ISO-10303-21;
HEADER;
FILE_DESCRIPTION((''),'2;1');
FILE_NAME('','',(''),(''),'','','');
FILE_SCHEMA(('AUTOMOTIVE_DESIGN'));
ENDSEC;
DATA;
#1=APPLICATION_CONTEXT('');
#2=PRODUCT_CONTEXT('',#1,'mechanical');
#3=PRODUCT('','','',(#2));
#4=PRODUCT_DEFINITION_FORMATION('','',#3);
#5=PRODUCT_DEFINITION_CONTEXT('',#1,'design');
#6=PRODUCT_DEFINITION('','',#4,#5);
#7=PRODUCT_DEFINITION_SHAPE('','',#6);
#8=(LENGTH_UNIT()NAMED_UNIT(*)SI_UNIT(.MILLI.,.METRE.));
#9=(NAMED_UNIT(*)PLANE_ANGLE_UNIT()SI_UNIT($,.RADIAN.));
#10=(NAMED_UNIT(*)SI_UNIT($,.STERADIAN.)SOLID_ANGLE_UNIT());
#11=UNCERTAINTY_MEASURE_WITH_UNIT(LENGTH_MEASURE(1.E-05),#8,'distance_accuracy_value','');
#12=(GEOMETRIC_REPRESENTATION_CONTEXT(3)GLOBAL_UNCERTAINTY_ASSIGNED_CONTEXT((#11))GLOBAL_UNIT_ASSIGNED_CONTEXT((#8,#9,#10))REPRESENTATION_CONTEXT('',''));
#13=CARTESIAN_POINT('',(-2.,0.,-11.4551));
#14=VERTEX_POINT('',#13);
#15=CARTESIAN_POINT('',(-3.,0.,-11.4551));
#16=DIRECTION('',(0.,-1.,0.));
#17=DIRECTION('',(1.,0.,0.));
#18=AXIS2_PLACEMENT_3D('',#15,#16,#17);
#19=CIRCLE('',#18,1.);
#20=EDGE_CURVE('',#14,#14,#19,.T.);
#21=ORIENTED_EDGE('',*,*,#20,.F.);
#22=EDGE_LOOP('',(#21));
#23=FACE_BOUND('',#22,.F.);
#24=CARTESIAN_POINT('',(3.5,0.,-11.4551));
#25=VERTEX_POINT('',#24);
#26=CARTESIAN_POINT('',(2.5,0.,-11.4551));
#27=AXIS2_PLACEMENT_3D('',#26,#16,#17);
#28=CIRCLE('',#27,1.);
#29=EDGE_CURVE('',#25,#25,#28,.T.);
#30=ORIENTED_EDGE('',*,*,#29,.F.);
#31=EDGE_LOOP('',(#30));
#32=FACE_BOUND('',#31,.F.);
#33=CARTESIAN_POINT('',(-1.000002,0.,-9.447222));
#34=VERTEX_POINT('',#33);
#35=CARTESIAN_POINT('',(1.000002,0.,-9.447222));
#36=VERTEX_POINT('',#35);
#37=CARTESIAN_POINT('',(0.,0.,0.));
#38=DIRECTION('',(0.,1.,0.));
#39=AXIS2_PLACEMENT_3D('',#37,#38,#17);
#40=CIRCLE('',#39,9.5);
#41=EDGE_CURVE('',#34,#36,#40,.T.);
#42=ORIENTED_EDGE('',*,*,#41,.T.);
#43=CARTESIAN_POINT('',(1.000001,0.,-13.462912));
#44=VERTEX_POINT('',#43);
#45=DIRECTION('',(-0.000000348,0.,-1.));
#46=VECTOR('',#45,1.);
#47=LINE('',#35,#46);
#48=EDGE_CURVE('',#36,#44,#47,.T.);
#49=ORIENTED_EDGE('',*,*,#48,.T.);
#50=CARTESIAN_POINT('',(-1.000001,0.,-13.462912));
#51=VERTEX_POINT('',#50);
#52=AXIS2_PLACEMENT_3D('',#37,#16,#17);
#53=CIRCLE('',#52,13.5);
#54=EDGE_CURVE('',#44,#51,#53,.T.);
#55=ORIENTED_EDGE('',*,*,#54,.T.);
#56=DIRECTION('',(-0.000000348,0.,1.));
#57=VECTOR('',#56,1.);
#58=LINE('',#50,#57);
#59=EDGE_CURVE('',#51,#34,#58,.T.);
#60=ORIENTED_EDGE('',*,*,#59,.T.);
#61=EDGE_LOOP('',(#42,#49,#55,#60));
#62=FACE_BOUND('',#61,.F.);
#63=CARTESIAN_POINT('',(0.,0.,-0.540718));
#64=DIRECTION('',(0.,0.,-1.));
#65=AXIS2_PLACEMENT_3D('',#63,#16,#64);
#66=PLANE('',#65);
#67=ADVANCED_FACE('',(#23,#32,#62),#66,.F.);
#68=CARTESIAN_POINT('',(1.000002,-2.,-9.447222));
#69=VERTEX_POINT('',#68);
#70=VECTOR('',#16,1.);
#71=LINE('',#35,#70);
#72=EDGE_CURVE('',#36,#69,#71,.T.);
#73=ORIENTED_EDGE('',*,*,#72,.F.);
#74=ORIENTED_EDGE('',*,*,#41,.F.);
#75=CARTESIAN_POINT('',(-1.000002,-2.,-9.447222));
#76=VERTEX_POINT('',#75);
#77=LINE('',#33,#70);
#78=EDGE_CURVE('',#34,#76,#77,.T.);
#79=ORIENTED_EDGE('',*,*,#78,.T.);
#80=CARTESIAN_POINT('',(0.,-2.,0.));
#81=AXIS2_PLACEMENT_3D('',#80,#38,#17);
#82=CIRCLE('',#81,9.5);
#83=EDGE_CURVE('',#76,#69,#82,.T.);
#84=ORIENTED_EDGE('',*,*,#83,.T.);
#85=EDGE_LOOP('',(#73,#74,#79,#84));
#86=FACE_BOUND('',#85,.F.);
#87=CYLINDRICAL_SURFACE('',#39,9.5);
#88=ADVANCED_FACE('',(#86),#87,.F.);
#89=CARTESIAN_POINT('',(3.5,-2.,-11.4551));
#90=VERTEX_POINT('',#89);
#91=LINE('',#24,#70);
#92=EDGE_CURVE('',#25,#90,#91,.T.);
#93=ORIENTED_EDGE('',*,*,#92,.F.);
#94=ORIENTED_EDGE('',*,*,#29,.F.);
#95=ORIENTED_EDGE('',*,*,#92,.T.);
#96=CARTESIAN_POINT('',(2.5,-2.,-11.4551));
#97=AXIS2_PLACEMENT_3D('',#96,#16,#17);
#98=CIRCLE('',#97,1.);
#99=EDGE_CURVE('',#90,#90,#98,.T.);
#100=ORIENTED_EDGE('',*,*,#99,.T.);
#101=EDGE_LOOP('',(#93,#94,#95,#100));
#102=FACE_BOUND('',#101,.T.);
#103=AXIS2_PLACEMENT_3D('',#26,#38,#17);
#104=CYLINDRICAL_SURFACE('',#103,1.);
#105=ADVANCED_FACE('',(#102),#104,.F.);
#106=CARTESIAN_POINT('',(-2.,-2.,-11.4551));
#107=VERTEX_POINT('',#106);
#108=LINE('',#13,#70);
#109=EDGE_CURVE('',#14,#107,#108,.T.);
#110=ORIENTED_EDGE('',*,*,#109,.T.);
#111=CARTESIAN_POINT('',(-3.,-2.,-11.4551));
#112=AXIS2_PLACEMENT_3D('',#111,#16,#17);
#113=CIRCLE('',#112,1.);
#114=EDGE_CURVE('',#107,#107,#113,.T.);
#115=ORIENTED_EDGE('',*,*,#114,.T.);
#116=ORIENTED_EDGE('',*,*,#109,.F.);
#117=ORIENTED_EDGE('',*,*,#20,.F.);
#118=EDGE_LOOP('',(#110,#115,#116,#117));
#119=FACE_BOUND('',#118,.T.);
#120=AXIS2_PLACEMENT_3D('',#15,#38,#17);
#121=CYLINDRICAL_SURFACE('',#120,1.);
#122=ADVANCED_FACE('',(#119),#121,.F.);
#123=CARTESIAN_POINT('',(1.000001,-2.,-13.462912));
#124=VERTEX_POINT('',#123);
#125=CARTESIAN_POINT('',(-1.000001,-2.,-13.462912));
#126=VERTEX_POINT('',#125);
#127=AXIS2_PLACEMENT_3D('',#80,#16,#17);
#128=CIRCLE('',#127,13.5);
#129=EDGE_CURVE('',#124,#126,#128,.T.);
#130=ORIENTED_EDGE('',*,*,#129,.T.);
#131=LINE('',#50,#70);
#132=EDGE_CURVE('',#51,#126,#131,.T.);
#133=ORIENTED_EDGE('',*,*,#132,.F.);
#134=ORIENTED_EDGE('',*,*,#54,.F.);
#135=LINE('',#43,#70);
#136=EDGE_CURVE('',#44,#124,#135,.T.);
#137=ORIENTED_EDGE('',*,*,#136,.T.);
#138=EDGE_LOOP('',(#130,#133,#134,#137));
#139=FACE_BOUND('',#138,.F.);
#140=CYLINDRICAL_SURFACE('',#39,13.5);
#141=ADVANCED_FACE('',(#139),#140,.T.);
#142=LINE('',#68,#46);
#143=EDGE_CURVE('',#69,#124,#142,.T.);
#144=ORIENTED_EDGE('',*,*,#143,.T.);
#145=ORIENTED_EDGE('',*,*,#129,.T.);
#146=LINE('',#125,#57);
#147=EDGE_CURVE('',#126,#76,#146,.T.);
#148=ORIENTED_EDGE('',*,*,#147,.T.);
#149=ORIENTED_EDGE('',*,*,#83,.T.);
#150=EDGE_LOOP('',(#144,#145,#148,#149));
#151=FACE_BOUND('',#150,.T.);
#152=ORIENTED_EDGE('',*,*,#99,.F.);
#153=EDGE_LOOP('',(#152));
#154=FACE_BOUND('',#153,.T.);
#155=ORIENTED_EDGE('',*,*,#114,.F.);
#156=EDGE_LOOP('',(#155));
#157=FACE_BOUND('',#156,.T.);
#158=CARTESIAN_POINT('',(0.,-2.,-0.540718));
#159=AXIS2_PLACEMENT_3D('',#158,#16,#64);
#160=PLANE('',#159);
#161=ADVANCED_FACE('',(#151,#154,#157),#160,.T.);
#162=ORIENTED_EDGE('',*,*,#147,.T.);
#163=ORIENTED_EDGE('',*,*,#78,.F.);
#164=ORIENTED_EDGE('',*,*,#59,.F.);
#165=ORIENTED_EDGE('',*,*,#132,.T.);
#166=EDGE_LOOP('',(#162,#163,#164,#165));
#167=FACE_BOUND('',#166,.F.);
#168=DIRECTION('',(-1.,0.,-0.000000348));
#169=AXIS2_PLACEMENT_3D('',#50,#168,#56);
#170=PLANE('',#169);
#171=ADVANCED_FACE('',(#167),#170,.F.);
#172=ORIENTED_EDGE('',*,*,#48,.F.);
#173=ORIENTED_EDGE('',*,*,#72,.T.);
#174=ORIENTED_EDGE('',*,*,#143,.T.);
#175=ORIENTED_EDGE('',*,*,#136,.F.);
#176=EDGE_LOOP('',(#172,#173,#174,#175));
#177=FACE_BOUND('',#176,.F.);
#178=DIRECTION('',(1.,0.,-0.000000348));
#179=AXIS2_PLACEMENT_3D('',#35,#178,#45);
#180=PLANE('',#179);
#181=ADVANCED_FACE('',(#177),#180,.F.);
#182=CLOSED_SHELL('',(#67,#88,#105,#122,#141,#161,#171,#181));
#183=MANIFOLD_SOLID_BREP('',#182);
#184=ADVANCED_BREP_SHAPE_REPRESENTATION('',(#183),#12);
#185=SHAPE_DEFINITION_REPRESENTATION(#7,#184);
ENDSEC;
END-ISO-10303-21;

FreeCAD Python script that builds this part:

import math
import FreeCAD as App
import Part
import Sketcher
from FreeCAD import Vector

doc = App.newDocument("Part")
body = doc.addObject("PartDesign::Body", "Body")

# Sketch on XZ plane
sketch1 = body.newObject("Sketcher::SketchObject", "Sketch")
sketch1.AttachmentSupport = (doc.getObject("XZ_Plane"), [""])
sketch1.MapMode = "FlatFace"
sketch1.addGeometry([
    Part.ArcOfCircle(Part.Circle(Vector(0, 0, 0), Vector(0, 0, 1), 13.5), math.radians(-86), math.radians(266)),  # 0
    Part.LineSegment(Vector(-1, -13.5, 0), Vector(-1, -9.4, 0)),  # 1
    Part.ArcOfCircle(Part.Circle(Vector(0, 0, 0), Vector(0, 0, 1), 9.5), math.radians(-84), math.radians(264)),  # 2
    Part.LineSegment(Vector(1, -9.4, 0), Vector(1, -13.5, 0)),  # 3
    Part.Circle(Vector(-3, -11.5, 0), Vector(0, 0, 1), 1),  # 4
    Part.Circle(Vector(2.5, -11.5, 0), Vector(0, 0, 1), 1),  # 5
], False)
sketch1.addConstraint([
    Sketcher.Constraint("Coincident", 0, 2, 1, 1),
    Sketcher.Constraint("Coincident", 1, 2, 2, 2),
    Sketcher.Constraint("Coincident", 2, 1, 3, 1),
    Sketcher.Constraint("Coincident", 3, 2, 0, 1),
    Sketcher.Constraint("Vertical", 1),
    Sketcher.Constraint("Vertical", 3),
    Sketcher.Constraint("Coincident", 0, 3, -1, 1),
    Sketcher.Constraint("Coincident", 2, 3, -1, 1),
    Sketcher.Constraint("Equal", 4, 5),
    Sketcher.Constraint("Horizontal", 4, 3, 5, 3),
    Sketcher.Constraint("Horizontal", 1, 2, 2, 1),
    Sketcher.Constraint("Diameter", 4, 2.0),
    Sketcher.Constraint("Radius", 0, 13.5),
    Sketcher.Constraint("Radius", 2, 9.5),
    Sketcher.Constraint("DistanceX", 4, 3, -1, 1, 3.0),
    Sketcher.Constraint("DistanceX", 0, 2, -1, 1, 1.0),
    Sketcher.Constraint("DistanceX", -1, 1, 5, 3, 2.5),
    Sketcher.Constraint("DistanceY", 4, 3, -1, 1, 11.455),
])
pad1 = body.newObject("PartDesign::Pad", "Pad")
pad1.Profile = sketch1
pad1.Length = 2

doc.recompute()
